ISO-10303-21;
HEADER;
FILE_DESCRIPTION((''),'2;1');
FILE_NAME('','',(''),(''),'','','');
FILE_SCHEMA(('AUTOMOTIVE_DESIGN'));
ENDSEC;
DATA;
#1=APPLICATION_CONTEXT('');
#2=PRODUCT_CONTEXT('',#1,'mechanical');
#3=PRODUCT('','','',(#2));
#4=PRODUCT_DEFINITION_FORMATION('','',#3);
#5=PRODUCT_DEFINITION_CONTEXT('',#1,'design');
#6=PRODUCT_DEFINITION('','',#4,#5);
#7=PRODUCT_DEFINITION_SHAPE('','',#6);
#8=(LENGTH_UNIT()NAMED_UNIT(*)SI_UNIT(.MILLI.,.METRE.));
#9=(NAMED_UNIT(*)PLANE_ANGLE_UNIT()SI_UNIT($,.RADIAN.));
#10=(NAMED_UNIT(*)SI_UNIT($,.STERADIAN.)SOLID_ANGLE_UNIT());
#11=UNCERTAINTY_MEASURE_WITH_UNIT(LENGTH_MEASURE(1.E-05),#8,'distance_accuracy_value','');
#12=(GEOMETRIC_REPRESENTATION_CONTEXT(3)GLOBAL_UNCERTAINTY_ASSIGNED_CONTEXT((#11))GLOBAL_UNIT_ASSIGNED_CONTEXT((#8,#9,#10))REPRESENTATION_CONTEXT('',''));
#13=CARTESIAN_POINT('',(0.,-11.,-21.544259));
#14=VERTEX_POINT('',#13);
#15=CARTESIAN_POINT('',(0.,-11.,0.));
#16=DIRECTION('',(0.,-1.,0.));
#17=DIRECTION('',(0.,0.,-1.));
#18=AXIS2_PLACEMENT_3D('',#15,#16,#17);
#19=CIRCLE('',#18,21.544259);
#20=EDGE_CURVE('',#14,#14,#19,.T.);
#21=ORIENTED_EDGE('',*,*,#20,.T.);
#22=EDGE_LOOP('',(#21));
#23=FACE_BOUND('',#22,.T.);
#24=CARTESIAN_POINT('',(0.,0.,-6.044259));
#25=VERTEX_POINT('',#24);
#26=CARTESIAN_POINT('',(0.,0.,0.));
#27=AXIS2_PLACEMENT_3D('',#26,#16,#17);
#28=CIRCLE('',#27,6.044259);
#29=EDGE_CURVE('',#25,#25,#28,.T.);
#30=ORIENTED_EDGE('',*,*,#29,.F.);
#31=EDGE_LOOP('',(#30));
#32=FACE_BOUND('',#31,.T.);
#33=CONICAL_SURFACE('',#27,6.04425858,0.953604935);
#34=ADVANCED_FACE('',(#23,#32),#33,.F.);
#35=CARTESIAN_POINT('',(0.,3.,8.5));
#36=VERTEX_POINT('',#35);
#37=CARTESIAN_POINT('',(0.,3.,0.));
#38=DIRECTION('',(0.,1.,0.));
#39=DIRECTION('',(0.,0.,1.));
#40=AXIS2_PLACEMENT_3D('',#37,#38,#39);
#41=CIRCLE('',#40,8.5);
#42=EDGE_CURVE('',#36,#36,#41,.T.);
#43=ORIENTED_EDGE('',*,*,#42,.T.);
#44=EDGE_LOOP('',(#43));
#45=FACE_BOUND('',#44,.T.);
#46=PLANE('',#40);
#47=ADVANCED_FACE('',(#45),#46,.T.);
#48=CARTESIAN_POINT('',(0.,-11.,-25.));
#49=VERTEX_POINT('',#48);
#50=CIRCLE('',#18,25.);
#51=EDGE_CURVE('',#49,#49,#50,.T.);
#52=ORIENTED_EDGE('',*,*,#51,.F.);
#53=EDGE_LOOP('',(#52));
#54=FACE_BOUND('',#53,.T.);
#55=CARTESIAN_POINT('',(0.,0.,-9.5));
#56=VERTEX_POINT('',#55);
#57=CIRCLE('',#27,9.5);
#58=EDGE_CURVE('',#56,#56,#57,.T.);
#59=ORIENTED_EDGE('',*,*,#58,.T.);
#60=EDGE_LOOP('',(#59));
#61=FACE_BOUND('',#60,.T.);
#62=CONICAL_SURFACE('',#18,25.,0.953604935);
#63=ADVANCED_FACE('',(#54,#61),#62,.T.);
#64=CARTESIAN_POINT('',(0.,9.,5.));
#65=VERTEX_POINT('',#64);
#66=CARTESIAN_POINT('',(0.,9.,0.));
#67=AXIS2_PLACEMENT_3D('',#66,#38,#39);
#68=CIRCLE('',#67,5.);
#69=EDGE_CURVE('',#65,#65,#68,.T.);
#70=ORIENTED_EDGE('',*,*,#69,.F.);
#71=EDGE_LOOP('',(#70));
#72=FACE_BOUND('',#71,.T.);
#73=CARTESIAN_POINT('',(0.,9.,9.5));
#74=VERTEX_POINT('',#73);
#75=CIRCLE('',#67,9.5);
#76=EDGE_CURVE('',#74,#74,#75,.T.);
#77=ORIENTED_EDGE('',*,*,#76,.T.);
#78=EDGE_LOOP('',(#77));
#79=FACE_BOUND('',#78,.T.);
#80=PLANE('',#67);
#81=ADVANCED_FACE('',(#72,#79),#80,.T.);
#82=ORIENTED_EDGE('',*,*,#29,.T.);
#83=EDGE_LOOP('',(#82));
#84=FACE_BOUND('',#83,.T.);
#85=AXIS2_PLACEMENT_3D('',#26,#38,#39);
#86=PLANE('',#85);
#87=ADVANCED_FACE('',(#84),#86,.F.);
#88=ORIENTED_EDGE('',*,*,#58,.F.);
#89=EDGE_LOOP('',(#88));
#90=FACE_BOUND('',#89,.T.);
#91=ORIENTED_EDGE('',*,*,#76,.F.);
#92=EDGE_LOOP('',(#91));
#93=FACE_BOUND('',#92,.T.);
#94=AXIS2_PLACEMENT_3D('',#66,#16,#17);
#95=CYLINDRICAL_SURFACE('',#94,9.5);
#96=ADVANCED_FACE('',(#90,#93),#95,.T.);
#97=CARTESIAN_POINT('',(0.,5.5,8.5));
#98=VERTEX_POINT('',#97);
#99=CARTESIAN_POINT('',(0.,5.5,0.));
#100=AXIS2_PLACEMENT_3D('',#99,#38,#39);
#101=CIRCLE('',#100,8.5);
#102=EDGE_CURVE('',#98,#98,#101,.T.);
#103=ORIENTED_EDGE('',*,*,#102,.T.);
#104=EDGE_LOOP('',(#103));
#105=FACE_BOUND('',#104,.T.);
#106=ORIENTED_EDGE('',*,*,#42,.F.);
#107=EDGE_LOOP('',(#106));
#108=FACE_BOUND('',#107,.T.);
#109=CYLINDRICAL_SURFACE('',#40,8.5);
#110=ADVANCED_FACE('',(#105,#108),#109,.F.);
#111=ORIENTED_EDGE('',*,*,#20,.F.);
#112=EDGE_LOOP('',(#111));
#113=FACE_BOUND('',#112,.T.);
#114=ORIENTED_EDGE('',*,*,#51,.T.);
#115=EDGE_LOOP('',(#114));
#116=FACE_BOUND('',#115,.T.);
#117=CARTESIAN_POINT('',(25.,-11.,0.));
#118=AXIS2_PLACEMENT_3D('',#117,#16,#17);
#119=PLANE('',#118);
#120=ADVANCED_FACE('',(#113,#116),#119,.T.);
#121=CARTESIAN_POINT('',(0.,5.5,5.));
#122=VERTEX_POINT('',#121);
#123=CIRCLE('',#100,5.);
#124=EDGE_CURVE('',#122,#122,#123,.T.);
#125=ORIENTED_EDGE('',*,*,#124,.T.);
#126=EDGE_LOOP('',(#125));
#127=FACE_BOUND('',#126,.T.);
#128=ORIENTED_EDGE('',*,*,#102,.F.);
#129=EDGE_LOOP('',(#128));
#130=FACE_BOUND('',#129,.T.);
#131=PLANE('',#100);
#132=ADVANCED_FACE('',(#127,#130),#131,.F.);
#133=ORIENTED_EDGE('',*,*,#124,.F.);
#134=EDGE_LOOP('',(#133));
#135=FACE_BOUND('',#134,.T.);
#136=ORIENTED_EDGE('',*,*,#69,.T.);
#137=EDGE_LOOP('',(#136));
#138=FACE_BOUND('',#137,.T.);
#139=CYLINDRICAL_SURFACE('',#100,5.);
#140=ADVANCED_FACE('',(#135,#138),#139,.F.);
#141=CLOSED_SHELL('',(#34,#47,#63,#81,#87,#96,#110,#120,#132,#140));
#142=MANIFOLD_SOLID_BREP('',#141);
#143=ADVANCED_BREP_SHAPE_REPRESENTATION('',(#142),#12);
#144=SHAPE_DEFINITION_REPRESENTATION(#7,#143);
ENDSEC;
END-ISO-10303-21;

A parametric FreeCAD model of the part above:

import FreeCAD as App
import Part
import Sketcher

doc = App.newDocument("Part")
body = doc.addObject("PartDesign::Body", "Body")

# Sketch on XZ plane
sketch1 = body.newObject("Sketcher::SketchObject", "Sketch")
sketch1.AttachmentSupport = (doc.getObject("XZ_Plane"), [""])
sketch1.MapMode = "FlatFace"
sketch1.addGeometry(Part.Circle(App.Vector(0, 0, 0), App.Vector(0, 0, 1), 10), False)
sketch1.addConstraint([
    Sketcher.Constraint("Coincident", 0, 3, -1, 1),
    Sketcher.Constraint("Diameter", 0, 19.0),
])
pad1 = body.newObject("PartDesign::Pad", "Pad")
pad1.Profile = sketch1
pad1.Length = 9
pad1.Reversed = True

# Sketch on XZ plane
sketch2 = body.newObject("Sketcher::SketchObject", "Sketch001")
sketch2.AttachmentSupport = (doc.getObject("XZ_Plane"), [""])
sketch2.MapMode = "FlatFace"
sketch2.AttachmentOffset = App.Placement(App.Vector(0, 0, -9), App.Rotation())
sketch2.addGeometry(Part.Circle(App.Vector(0, 0, 0), App.Vector(0, 0, 1), 5), False)
sketch2.addConstraint([
    Sketcher.Constraint("Coincident", 0, 3, -1, 1),
    Sketcher.Constraint("Diameter", 0, 10.0),
])
pocket1 = body.newObject("PartDesign::Pocket", "Pocket")
pocket1.Profile = sketch2
pocket1.Length = 3.5
pocket1.Reversed = True

# Sketch on XZ plane
sketch3 = body.newObject("Sketcher::SketchObject", "Sketch002")
sketch3.AttachmentSupport = (doc.getObject("XZ_Plane"), [""])
sketch3.MapMode = "FlatFace"
sketch3.AttachmentOffset = App.Placement(App.Vector(0, 0, -5.5), App.Rotation())
sketch3.addGeometry(Part.Circle(App.Vector(0, 0, 0), App.Vector(0, 0, 1), 8), False)
sketch3.addConstraint([
    Sketcher.Constraint("Coincident", 0, 3, -1, 1),
    Sketcher.Constraint("Diameter", 0, 17.0),
])
pocket2 = body.newObject("PartDesign::Pocket", "Pocket001")
pocket2.Profile = sketch3
pocket2.Length = 2.5
pocket2.Reversed = True

# Sketch on XY plane
sketch4 = body.newObject("Sketcher::SketchObject", "Sketch003")
sketch4.AttachmentSupport = (doc.getObject("XY_Plane"), [""])
sketch4.MapMode = "FlatFace"
sketch4.addGeometry([
    Part.LineSegment(App.Vector(25, -11, 0), App.Vector(9.5, 0, 0)),
    Part.LineSegment(App.Vector(9.5, 0, 0), App.Vector(6, 0, 0)),
    Part.LineSegment(App.Vector(6, 0, 0), App.Vector(21.5, -11, 0)),
    Part.LineSegment(App.Vector(21.5, -11, 0), App.Vector(25, -11, 0)),
], False)
sketch4.addConstraint([
    Sketcher.Constraint("Coincident", 0, 2, 1, 1),
    Sketcher.Constraint("Coincident", 1, 2, 2, 1),
    Sketcher.Constraint("Coincident", 2, 2, 3, 1),
    Sketcher.Constraint("Coincident", 3, 2, 0, 1),
    Sketcher.Constraint("Horizontal", 1),
    Sketcher.Constraint("Horizontal", 3),
    Sketcher.Constraint("PointOnObject", 0, 2, -1),
    Sketcher.Constraint("Parallel", 0, 2),
    Sketcher.Constraint("DistanceY", 2, 2, -1, 1, 11.0),
    Sketcher.Constraint("DistanceX", -1, 1, 3, 2, 25.0),
    Sketcher.Constraint("DistanceX", -1, 1, 0, 2, 9.5),
    Sketcher.Constraint("DistanceX", 1, 2, 1, 1, 3.455741),
])
revolution = body.newObject("PartDesign::Revolution", "Revolution")
revolution.Profile = sketch4
revolution.ReferenceAxis = (sketch4, ["V_Axis"])
revolution.Angle = 360

doc.recompute()
